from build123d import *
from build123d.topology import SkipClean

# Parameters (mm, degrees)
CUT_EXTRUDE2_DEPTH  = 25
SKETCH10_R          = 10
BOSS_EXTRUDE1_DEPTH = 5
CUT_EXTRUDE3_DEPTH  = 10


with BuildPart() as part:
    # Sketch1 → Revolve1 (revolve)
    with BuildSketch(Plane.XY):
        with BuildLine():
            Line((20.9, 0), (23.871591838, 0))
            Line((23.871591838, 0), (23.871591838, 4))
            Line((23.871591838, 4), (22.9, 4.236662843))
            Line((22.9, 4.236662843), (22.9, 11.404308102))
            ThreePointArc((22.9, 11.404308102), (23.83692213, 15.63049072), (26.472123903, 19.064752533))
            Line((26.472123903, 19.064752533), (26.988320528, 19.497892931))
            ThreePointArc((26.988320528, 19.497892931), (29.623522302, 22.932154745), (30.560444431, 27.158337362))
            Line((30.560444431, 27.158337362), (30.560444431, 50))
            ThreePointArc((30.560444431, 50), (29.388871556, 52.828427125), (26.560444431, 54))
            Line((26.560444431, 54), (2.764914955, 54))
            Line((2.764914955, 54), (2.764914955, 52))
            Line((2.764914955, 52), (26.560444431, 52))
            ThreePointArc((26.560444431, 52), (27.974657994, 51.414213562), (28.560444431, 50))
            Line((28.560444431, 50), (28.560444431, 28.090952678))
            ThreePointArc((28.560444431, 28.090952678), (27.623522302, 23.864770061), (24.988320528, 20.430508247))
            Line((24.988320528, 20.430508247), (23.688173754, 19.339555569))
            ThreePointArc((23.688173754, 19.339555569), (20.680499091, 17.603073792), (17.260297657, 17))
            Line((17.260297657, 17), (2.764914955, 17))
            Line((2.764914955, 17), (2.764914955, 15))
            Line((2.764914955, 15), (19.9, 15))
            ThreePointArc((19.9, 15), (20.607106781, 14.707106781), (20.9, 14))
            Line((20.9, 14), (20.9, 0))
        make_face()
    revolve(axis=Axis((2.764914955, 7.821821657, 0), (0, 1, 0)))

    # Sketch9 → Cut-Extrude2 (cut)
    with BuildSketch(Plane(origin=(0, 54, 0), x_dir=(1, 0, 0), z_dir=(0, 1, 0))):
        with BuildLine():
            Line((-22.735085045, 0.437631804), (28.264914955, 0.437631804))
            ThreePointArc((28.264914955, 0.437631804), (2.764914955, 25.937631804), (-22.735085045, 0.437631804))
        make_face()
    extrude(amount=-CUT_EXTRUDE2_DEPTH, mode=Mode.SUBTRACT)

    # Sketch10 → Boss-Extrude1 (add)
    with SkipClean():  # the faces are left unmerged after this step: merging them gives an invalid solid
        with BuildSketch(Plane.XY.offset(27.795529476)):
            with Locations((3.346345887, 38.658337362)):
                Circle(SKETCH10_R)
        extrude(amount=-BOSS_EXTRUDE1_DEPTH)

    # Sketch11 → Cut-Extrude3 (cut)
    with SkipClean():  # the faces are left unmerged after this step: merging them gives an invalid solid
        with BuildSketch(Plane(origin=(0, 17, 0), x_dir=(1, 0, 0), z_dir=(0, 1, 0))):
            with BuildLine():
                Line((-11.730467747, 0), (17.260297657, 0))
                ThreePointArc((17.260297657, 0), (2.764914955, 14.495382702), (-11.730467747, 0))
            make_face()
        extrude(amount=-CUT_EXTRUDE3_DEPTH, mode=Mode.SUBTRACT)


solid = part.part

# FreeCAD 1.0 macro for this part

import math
import FreeCAD as App
import Part
import Sketcher

V = App.Vector
Q = App.Units.Quantity

doc = App.newDocument("Part")
params = doc.addObject("Spreadsheet::Sheet", "Params")
for row, (alias, value) in enumerate([
    ("sketch1_radius", "10 mm"),
    ("sketch1_radius2", "4 mm"),
    ("sketch1_radius3", "2 mm"),
    ("sketch1_radius4", "1 mm"),
    ("sketch1_height", "4 mm"),
    ("revolution_angle", "360 deg"),
    ("sketch2_radius", "25.5 mm"),
    ("pocket1_length", "25 mm"),
    ("sketch3_diameter", "20 mm"),
    ("pad1_length", "5 mm"),
    ("pocket2_length", "10 mm"),
], start=1):
    params.set(f"A{row}", alias)
    params.set(f"B{row}", "=" + value)
    params.setAlias(f"B{row}", alias)

body = doc.addObject("PartDesign::Body", "Body")

# Sketch on XY plane
sketch1 = doc.addObject("Sketcher::SketchObject", "Sketch")
body.addObject(sketch1)
sketch1.AttachmentSupport = (doc.XY_Plane, [""])
sketch1.MapMode = "FlatFace"
sketch1.addGeometry(Part.LineSegment(V(20.9, 0, 0), V(23.9, 0, 0)), False)
sketch1.addGeometry(Part.LineSegment(V(23.9, 0, 0), V(23.9, 4, 0)), False)
sketch1.addGeometry(Part.LineSegment(V(23.9, 4, 0), V(22.9, 4.2, 0)), False)
sketch1.addGeometry(Part.LineSegment(V(22.9, 4.2, 0), V(22.9, 11.4, 0)), False)
sketch1.addGeometry(Part.ArcOfCircle(Part.Circle(V(32.9, 11.4, 0), V(0, 0, 1), 10), math.radians(130), math.radians(180)), False)
sketch1.addGeometry(Part.LineSegment(V(26.5, 19.1, 0), V(27, 19.5, 0)), False)
sketch1.addGeometry(Part.ArcOfCircle(Part.Circle(V(20.6, 27.2, 0), V(0, 0, 1), 10), math.radians(-50), math.radians(0)), False)
sketch1.addGeometry(Part.LineSegment(V(30.6, 27.2, 0), V(30.6, 50, 0)), False)
sketch1.addGeometry(Part.ArcOfCircle(Part.Circle(V(26.6, 50, 0), V(0, 0, 1), 4), math.radians(0), math.radians(90)), False)
sketch1.addGeometry(Part.LineSegment(V(26.6, 54, 0), V(2.8, 54, 0)), False)
sketch1.addGeometry(Part.LineSegment(V(2.8, 54, 0), V(2.8, 52, 0)), False)
sketch1.addGeometry(Part.LineSegment(V(2.8, 52, 0), V(26.6, 52, 0)), False)
sketch1.addGeometry(Part.ArcOfCircle(Part.Circle(V(26.6, 50, 0), V(0, 0, 1), 2), math.radians(0), math.radians(90)), False)
sketch1.addGeometry(Part.LineSegment(V(28.6, 50, 0), V(28.6, 28.1, 0)), False)
sketch1.addGeometry(Part.ArcOfCircle(Part.Circle(V(18.6, 28.1, 0), V(0, 0, 1), 10), math.radians(-50), math.radians(0)), False)
sketch1.addGeometry(Part.LineSegment(V(25, 20.4, 0), V(23.7, 19.3, 0)), False)
sketch1.addGeometry(Part.ArcOfCircle(Part.Circle(V(17.3, 27, 0), V(0, 0, 1), 10), math.radians(-90), math.radians(-50)), False)
sketch1.addGeometry(Part.LineSegment(V(17.3, 17, 0), V(2.8, 17, 0)), False)
sketch1.addGeometry(Part.LineSegment(V(2.8, 17, 0), V(2.8, 15, 0)), False)
sketch1.addGeometry(Part.LineSegment(V(2.8, 15, 0), V(19.9, 15, 0)), False)
sketch1.addGeometry(Part.ArcOfCircle(Part.Circle(V(19.9, 14, 0), V(0, 0, 1), 1), math.radians(0), math.radians(90)), False)
sketch1.addGeometry(Part.LineSegment(V(20.9, 14, 0), V(20.9, 0, 0)), False)
sketch1.addGeometry(Part.LineSegment(V(2.8, 0, 0), V(2.8, 54, 0)), True)  # axis
sketch1.addConstraint(Sketcher.Constraint("Coincident", 0, 2, 1, 1))
sketch1.addConstraint(Sketcher.Constraint("Coincident", 1, 2, 2, 1))
sketch1.addConstraint(Sketcher.Constraint("Coincident", 2, 2, 3, 1))
sketch1.addConstraint(Sketcher.Constraint("Tangent", 3, 2, 4, 2))
sketch1.addConstraint(Sketcher.Constraint("Tangent", 4, 1, 5, 1))
sketch1.addConstraint(Sketcher.Constraint("Tangent", 5, 2, 6, 1))
sketch1.addConstraint(Sketcher.Constraint("Tangent", 6, 2, 7, 1))
sketch1.addConstraint(Sketcher.Constraint("Tangent", 7, 2, 8, 1))
sketch1.addConstraint(Sketcher.Constraint("Tangent", 8, 2, 9, 1))
sketch1.addConstraint(Sketcher.Constraint("Coincident", 9, 2, 10, 1))
sketch1.addConstraint(Sketcher.Constraint("Coincident", 10, 2, 11, 1))
sketch1.addConstraint(Sketcher.Constraint("Tangent", 11, 2, 12, 2))
sketch1.addConstraint(Sketcher.Constraint("Tangent", 12, 1, 13, 1))
sketch1.addConstraint(Sketcher.Constraint("Tangent", 13, 2, 14, 2))
sketch1.addConstraint(Sketcher.Constraint("Tangent", 14, 1, 15, 1))
sketch1.addConstraint(Sketcher.Constraint("Tangent", 15, 2, 16, 2))
sketch1.addConstraint(Sketcher.Constraint("Tangent", 16, 1, 17, 1))
sketch1.addConstraint(Sketcher.Constraint("Coincident", 17, 2, 18, 1))
sketch1.addConstraint(Sketcher.Constraint("Coincident", 18, 2, 19, 1))
sketch1.addConstraint(Sketcher.Constraint("Tangent", 19, 2, 20, 2))
sketch1.addConstraint(Sketcher.Constraint("Tangent", 20, 1, 21, 1))
sketch1.addConstraint(Sketcher.Constraint("Coincident", 21, 2, 0, 1))
sketch1.addConstraint(Sketcher.Constraint("Horizontal", 0))
sketch1.addConstraint(Sketcher.Constraint("Vertical", 1))
sketch1.addConstraint(Sketcher.Constraint("Vertical", 3))
sketch1.addConstraint(Sketcher.Constraint("Vertical", 7))
sketch1.addConstraint(Sketcher.Constraint("Horizontal", 9))
sketch1.addConstraint(Sketcher.Constraint("Vertical", 10))
sketch1.addConstraint(Sketcher.Constraint("Horizontal", 11))
sketch1.addConstraint(Sketcher.Constraint("Vertical", 13))
sketch1.addConstraint(Sketcher.Constraint("Horizontal", 17))
sketch1.addConstraint(Sketcher.Constraint("Vertical", 18))
sketch1.addConstraint(Sketcher.Constraint("Horizontal", 19))
sketch1.addConstraint(Sketcher.Constraint("Vertical", 21))
sketch1.addConstraint(Sketcher.Constraint("Vertical", 22))
sketch1.addConstraint(Sketcher.Constraint("Coincident", 12, 3, 8, 3))
sketch1.addConstraint(Sketcher.Constraint("Coincident", 22, 2, 9, 2))
sketch1.addConstraint(Sketcher.Constraint("Equal", 4, 6))
sketch1.addConstraint(Sketcher.Constraint("Equal", 6, 14))
sketch1.addConstraint(Sketcher.Constraint("Equal", 14, 16))
sketch1.addConstraint(Sketcher.Constraint("PointOnObject", 0, 2, -1))
sketch1.addConstraint(Sketcher.Constraint("PointOnObject", 22, 1, -1))
sketch1.addConstraint(Sketcher.Constraint("Parallel", 5, 15))
sketch1.addConstraint(Sketcher.Constraint("Vertical", 10, 2, 17, 2))
sketch1.addConstraint(Sketcher.Constraint("Equal", 10, 18))
sketch1.addConstraint(Sketcher.Constraint("Radius", 4, Q("10 mm")))
sketch1.addConstraint(Sketcher.Constraint("Radius", 8, Q("4 mm")))
sketch1.addConstraint(Sketcher.Constraint("Radius", 12, Q("2 mm")))
sketch1.addConstraint(Sketcher.Constraint("Radius", 20, Q("1 mm")))
sketch1.addConstraint(Sketcher.Constraint("DistanceY", 1, 1, 1, 2, Q("4 mm")))
sketch1.addConstraint(Sketcher.Constraint("DistanceY", 21, 2, 21, 1, Q("14 mm")))
sketch1.addConstraint(Sketcher.Constraint("DistanceY", 22, 1, 22, 2, Q("54 mm")))
sketch1.addConstraint(Sketcher.Constraint("Angle", 5, Q("40 deg")))
sketch1.addConstraint(Sketcher.Constraint("Distance", 2, Q("1 mm")))
sketch1.addConstraint(Sketcher.Constraint("DistanceX", 20, 3, 4, 3, Q("13 mm")))
sketch1.addConstraint(Sketcher.Constraint("DistanceX", -1, 1, 4, 3, Q("32.9 mm")))
sketch1.addConstraint(Sketcher.Constraint("DistanceX", 0, 1, 0, 2, Q("2.971592 mm")))
sketch1.addConstraint(Sketcher.Constraint("DistanceX", 9, 2, 9, 1, Q("23.795529 mm")))
sketch1.addConstraint(Sketcher.Constraint("DistanceY", 4, 1, 14, 3, Q("9.0262 mm")))
sketch1.addConstraint(Sketcher.Constraint("Distance", 15, Q("1.697221 mm")))
sketch1.addConstraint(Sketcher.Constraint("DistanceX", 19, 1, 19, 2, Q("17.135085 mm")))
sketch1.setExpression("Constraints[45]", "Params.sketch1_radius")
sketch1.setExpression("Constraints[46]", "Params.sketch1_radius2")
sketch1.setExpression("Constraints[47]", "Params.sketch1_radius3")
sketch1.setExpression("Constraints[48]", "Params.sketch1_radius4")
sketch1.setExpression("Constraints[49]", "Params.sketch1_height")
revolution = doc.addObject("PartDesign::Revolution", "Revolution")
body.addObject(revolution)
revolution.Profile = sketch1
revolution.ReferenceAxis = (sketch1, ["Axis0"])
revolution.setExpression("Angle", "Params.revolution_angle")

# Sketch on XZ plane
sketch2 = doc.addObject("Sketcher::SketchObject", "Sketch001")
body.addObject(sketch2)
sketch2.AttachmentSupport = (doc.XZ_Plane, [""])
sketch2.MapMode = "FlatFace"
sketch2.AttachmentOffset = App.Placement(V(0, 0, -54), App.Rotation())
sketch2.addGeometry(Part.LineSegment(V(-23, 0, 0), V(28, 0, 0)), False)
sketch2.addGeometry(Part.ArcOfCircle(Part.Circle(V(3, 0, 0), V(0, 0, 1), 26), math.radians(180), math.radians(360)), False)
sketch2.addConstraint(Sketcher.Constraint("Coincident", 0, 1, 1, 1))
sketch2.addConstraint(Sketcher.Constraint("Coincident", 1, 2, 0, 2))
sketch2.addConstraint(Sketcher.Constraint("Horizontal", 0))
sketch2.addConstraint(Sketcher.Constraint("Horizontal", 1, 3, 0, 1))
sketch2.addConstraint(Sketcher.Constraint("Radius", 1, Q("25.5 mm")))
sketch2.addConstraint(Sketcher.Constraint("DistanceY", 1, 3, -1, 1, Q("0.437632 mm")))
sketch2.addConstraint(Sketcher.Constraint("DistanceX", -1, 1, 1, 3, Q("2.764915 mm")))
sketch2.setExpression("Constraints[4]", "Params.sketch2_radius")
pocket1 = doc.addObject("PartDesign::Pocket", "Pocket")
body.addObject(pocket1)
pocket1.Profile = sketch2
pocket1.setExpression("Length", "Params.pocket1_length")
pocket1.Reversed = True

# Sketch on XY plane
sketch3 = doc.addObject("Sketcher::SketchObject", "Sketch002")
body.addObject(sketch3)
sketch3.AttachmentSupport = (doc.XY_Plane, [""])
sketch3.MapMode = "FlatFace"
sketch3.AttachmentOffset = App.Placement(V(0, 0, 27.795529), App.Rotation())
sketch3.addGeometry(Part.Circle(V(3, 39, 0), V(0, 0, 1), 10), False)
sketch3.addConstraint(Sketcher.Constraint("Diameter", 0, Q("20 mm")))
sketch3.addConstraint(Sketcher.Constraint("DistanceX", -1, 1, 0, 3, Q("3.346346 mm")))
sketch3.addConstraint(Sketcher.Constraint("DistanceY", -1, 1, 0, 3, Q("38.658337 mm")))
sketch3.setExpression("Constraints[0]", "Params.sketch3_diameter")
pad1 = doc.addObject("PartDesign::Pad", "Pad")
body.addObject(pad1)
pad1.Profile = sketch3
pad1.setExpression("Length", "Params.pad1_length")
pad1.Reversed = True

# Sketch on XZ plane
sketch4 = doc.addObject("Sketcher::SketchObject", "Sketch003")
body.addObject(sketch4)
sketch4.AttachmentSupport = (doc.XZ_Plane, [""])
sketch4.MapMode = "FlatFace"
sketch4.AttachmentOffset = App.Placement(V(0, 0, -17), App.Rotation())
sketch4.addGeometry(Part.LineSegment(V(-12, 0, 0), V(17, 0, 0)), False)
sketch4.addGeometry(Part.ArcOfCircle(Part.Circle(V(3, 0, 0), V(0, 0, 1), 14), math.radians(180), math.radians(360)), False)
sketch4.addConstraint(Sketcher.Constraint("Coincident", 0, 1, 1, 1))
sketch4.addConstraint(Sketcher.Constraint("Coincident", 1, 2, 0, 2))
sketch4.addConstraint(Sketcher.Constraint("Horizontal", 0))
sketch4.addConstraint(Sketcher.Constraint("PointOnObject", 1, 3, -1))
sketch4.addConstraint(Sketcher.Constraint("PointOnObject", 0, 1, -1))
sketch4.addConstraint(Sketcher.Constraint("Radius", 1, Q("14.495383 mm")))
sketch4.addConstraint(Sketcher.Constraint("DistanceX", -1, 1, 1, 3, Q("2.764915 mm")))
pocket2 = doc.addObject("PartDesign::Pocket", "Pocket001")
body.addObject(pocket2)
pocket2.Profile = sketch4
pocket2.setExpression("Length", "Params.pocket2_length")
pocket2.Reversed = True

doc.recompute()
